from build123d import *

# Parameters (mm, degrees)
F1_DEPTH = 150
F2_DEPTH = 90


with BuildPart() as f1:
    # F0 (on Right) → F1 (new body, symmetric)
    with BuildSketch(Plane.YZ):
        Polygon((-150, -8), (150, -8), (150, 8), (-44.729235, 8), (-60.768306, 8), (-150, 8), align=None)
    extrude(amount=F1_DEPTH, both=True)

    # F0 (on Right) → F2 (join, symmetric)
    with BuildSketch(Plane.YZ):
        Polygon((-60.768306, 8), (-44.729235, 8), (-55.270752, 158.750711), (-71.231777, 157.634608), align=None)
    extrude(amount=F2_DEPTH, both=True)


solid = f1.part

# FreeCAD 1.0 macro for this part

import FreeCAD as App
import Part
import Sketcher
from FreeCAD import Vector
Q = App.Units.Quantity

doc = App.newDocument("Part")
params = doc.addObject("Spreadsheet::Sheet", "Params")
for row, (alias, value) in enumerate([
    ("sketch1_width", "300 mm"),
    ("sketch1_height", "16 mm"),
    ("pad1_length", "300 mm"),
    ("sketch2_length", "16 mm"),
    ("sketch2_length2", "150 mm"),
    ("pad2_length", "180 mm"),
], start=1):
    params.set(f"A{row}", alias)
    params.set(f"B{row}", "=" + value)
    params.setAlias(f"B{row}", alias)

body = doc.addObject("PartDesign::Body", "Body")

sketch1 = doc.addObject("Sketcher::SketchObject", "Sketch")
body.addObject(sketch1)
sketch1.AttachmentSupport = (doc.YZ_Plane, [""])
sketch1.MapMode = "FlatFace"
sketch1.addGeometry([
    Part.LineSegment(Vector(-150, -8, 0), Vector(150, -8, 0)),
    Part.LineSegment(Vector(150, -8, 0), Vector(150, 8, 0)),
    Part.LineSegment(Vector(150, 8, 0), Vector(-150, 8, 0)),
    Part.LineSegment(Vector(-150, 8, 0), Vector(-150, -8, 0)),
], False)
sketch1.addConstraint([
    Sketcher.Constraint("Coincident", 0, 2, 1, 1),
    Sketcher.Constraint("Coincident", 1, 2, 2, 1),
    Sketcher.Constraint("Coincident", 2, 2, 3, 1),
    Sketcher.Constraint("Coincident", 3, 2, 0, 1),
    Sketcher.Constraint("Horizontal", 0),
    Sketcher.Constraint("Vertical", 1),
    Sketcher.Constraint("Horizontal", 2),
    Sketcher.Constraint("Vertical", 3),
    Sketcher.Constraint("Symmetric", 0, 2, 2, 2, -1, 1),
    Sketcher.Constraint("DistanceX", 0, 1, 0, 2, 300.0),
    Sketcher.Constraint("DistanceY", 1, 1, 1, 2, 16.0),
])
sketch1.setExpression("Constraints[9]", "Params.sketch1_width")
sketch1.setExpression("Constraints[10]", "Params.sketch1_height")
pad1 = doc.addObject("PartDesign::Pad", "Pad")
body.addObject(pad1)
pad1.Profile = sketch1
pad1.setExpression("Length", "Params.pad1_length")
pad1.Midplane = True

sketch2 = doc.addObject("Sketcher::SketchObject", "Sketch001")
body.addObject(sketch2)
sketch2.AttachmentSupport = (doc.YZ_Plane, [""])
sketch2.MapMode = "FlatFace"
sketch2.addGeometry([
    Part.LineSegment(Vector(-61, 8, 0), Vector(-45, 8, 0)),
    Part.LineSegment(Vector(-45, 8, 0), Vector(-55, 159, 0)),
    Part.LineSegment(Vector(-55, 159, 0), Vector(-71, 158, 0)),
    Part.LineSegment(Vector(-71, 158, 0), Vector(-61, 8, 0)),
], False)
sketch2.addConstraint([
    Sketcher.Constraint("Coincident", 0, 2, 1, 1),
    Sketcher.Constraint("Coincident", 1, 2, 2, 1),
    Sketcher.Constraint("Coincident", 2, 2, 3, 1),
    Sketcher.Constraint("Coincident", 3, 2, 0, 1),
    Sketcher.Constraint("Horizontal", 0),
    Sketcher.Constraint("Perpendicular", 1, 2),
    Sketcher.Constraint("Perpendicular", 2, 3),
    Sketcher.Constraint("Angle", 1, Q("94 deg")),
    Sketcher.Constraint("Distance", 2, 16.0),
    Sketcher.Constraint("Distance", 3, 150.0),
    Sketcher.Constraint("DistanceY", -1, 1, 0, 2, 8.0),
    Sketcher.Constraint("DistanceX", 0, 2, -1, 1, 44.729235),
])
sketch2.setExpression("Constraints[8]", "Params.sketch2_length")
sketch2.setExpression("Constraints[9]", "Params.sketch2_length2")
pad2 = doc.addObject("PartDesign::Pad", "Pad001")
body.addObject(pad2)
pad2.Profile = sketch2
pad2.setExpression("Length", "Params.pad2_length")
pad2.Midplane = True

doc.recompute()
